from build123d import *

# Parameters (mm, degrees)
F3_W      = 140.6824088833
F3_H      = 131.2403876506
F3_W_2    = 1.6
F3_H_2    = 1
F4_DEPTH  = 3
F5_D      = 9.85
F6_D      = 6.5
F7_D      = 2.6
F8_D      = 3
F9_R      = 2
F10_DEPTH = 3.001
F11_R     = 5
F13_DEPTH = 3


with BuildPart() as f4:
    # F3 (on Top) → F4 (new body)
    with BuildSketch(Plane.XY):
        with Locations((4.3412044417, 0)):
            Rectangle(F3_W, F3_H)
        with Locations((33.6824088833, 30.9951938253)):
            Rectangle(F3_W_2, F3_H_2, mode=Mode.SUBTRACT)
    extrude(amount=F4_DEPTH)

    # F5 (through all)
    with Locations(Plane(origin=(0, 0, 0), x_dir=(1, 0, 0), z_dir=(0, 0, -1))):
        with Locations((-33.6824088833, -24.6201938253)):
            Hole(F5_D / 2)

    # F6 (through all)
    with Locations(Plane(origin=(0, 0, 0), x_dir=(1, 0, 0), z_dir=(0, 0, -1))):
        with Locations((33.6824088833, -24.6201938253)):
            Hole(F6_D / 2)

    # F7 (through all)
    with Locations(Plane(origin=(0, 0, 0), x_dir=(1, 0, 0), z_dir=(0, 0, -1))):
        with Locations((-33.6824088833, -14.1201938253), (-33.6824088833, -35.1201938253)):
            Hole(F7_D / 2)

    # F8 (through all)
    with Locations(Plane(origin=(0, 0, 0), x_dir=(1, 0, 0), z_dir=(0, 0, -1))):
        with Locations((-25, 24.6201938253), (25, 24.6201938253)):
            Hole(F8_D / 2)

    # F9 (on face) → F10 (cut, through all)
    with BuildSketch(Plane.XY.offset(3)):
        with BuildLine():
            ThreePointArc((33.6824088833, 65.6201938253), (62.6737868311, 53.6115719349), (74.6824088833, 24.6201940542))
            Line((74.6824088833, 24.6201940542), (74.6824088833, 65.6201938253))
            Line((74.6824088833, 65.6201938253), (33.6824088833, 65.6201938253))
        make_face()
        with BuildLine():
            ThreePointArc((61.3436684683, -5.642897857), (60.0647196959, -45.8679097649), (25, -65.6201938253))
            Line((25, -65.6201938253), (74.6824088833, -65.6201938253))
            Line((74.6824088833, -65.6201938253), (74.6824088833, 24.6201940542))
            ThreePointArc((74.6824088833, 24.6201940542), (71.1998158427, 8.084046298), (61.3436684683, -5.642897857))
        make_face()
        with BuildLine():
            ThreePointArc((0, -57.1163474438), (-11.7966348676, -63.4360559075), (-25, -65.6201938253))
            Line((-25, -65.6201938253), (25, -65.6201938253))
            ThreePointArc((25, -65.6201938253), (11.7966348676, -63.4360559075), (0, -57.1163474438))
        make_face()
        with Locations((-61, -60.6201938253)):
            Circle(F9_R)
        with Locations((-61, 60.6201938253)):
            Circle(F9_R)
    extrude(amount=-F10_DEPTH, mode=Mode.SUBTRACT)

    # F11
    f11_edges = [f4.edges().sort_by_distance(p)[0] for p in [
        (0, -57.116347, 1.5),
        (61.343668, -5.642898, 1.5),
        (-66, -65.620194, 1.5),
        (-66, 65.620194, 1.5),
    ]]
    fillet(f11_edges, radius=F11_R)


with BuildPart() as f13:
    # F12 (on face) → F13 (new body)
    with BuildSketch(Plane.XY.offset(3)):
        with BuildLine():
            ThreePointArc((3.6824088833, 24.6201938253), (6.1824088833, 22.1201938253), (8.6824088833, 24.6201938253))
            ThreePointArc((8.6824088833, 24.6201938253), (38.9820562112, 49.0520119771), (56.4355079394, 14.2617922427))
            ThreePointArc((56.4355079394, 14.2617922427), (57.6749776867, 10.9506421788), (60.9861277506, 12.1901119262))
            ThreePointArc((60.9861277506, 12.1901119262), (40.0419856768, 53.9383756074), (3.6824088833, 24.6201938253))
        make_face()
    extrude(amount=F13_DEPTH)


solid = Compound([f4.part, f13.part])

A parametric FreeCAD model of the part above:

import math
import FreeCAD as App
import Part
import Sketcher
from FreeCAD import Vector
Q = App.Units.Quantity


def edges_at(feature, points):
    """Names of the edges that pass closest to the given points."""
    edges = feature.Shape.Edges
    near = lambda p: min(range(len(edges)), key=lambda i: edges[i].distToShape(Part.Vertex(*p))[0])
    return sorted({f"Edge{near(p) + 1}" for p in points})


def add_polygon(sketch, points):
    """Adds a closed chain of lines whose ends are joined by coincident constraints."""
    first, n = sketch.GeometryCount, len(points)
    for a, b in zip(points, points[1:] + points[:1]):
        sketch.addGeometry(Part.LineSegment(App.Vector(*a, 0), App.Vector(*b, 0)), False)
    for i in range(n):
        sketch.addConstraint(Sketcher.Constraint("Coincident", first + i, 2, first + (i + 1) % n, 1))

doc = App.newDocument("Part")
params = doc.addObject("Spreadsheet::Sheet", "Params")
for row, (alias, value) in enumerate([
    ("sketch1_height", "1 mm"),
    ("sketch1_width", "1.6 mm"),
    ("pad1_length", "3 mm"),
    ("sketch2_diameter", "9.85 mm"),
    ("hole_diameter", "9.85 mm"),
    ("sketch3_diameter", "6.5 mm"),
    ("hole2_diameter", "6.5 mm"),
    ("sketch4_diameter", "2.6 mm"),
    ("hole3_diameter", "2.6 mm"),
    ("sketch5_diameter", "3 mm"),
    ("hole4_diameter", "3 mm"),
    ("sketch6_diameter", "4 mm"),
    ("sketch6_radius", "41 mm"),
    ("sketch6_width", "50 mm"),
    ("fillet_radius", "5 mm"),
    ("sketch7_radius", "25 mm"),
    ("sketch7_radius2", "30 mm"),
    ("pad2_length", "3 mm"),
], start=1):
    params.set(f"A{row}", alias)
    params.set(f"B{row}", "=" + value)
    params.setAlias(f"B{row}", alias)

body = doc.addObject("PartDesign::Body", "Body")

# Sketch on XY plane
sketch1 = doc.addObject("Sketcher::SketchObject", "Sketch")
body.addObject(sketch1)
sketch1.AttachmentSupport = (doc.XY_Plane, [""])
sketch1.MapMode = "FlatFace"
add_polygon(sketch1, [(-66, 65.6), (-66, -65.6), (74.7, -65.6), (74.7, 65.6)])  # lines 0-3
add_polygon(sketch1, [(34.5, 30.5), (32.9, 30.5), (32.9, 31.5), (34.5, 31.5)])  # lines 4-7
sketch1.addConstraint([
    Sketcher.Constraint("Vertical", 0),
    Sketcher.Constraint("Horizontal", 1),
    Sketcher.Constraint("Vertical", 2),
    Sketcher.Constraint("Horizontal", 3),
    Sketcher.Constraint("Horizontal", 4),
    Sketcher.Constraint("Vertical", 5),
    Sketcher.Constraint("Horizontal", 6),
    Sketcher.Constraint("Vertical", 7),
    Sketcher.Constraint("DistanceY", 5, 1, 5, 2, Q("1 mm")),
    Sketcher.Constraint("DistanceX", 4, 2, 4, 1, Q("1.6 mm")),
    Sketcher.Constraint("DistanceX", 0, 2, -1, 1, Q("66 mm")),
    Sketcher.Constraint("DistanceX", 4, 2, 2, 2, Q("41.8 mm")),
    Sketcher.Constraint("DistanceY", 4, 2, 2, 2, Q("35.125 mm")),
    Sketcher.Constraint("DistanceX", 1, 1, 1, 2, Q("140.682409 mm")),
    Sketcher.Constraint("DistanceY", 0, 2, 0, 1, Q("131.240388 mm")),
    Sketcher.Constraint("DistanceY", 0, 2, -1, 1, Q("65.620194 mm")),
])
sketch1.setExpression("Constraints[16]", "Params.sketch1_height")
sketch1.setExpression("Constraints[17]", "Params.sketch1_width")
pad1 = doc.addObject("PartDesign::Pad", "Pad")
body.addObject(pad1)
pad1.Profile = sketch1
pad1.setExpression("Length", "Params.pad1_length")

# Sketch on XY plane
sketch2 = doc.addObject("Sketcher::SketchObject", "Sketch001")
body.addObject(sketch2)
sketch2.AttachmentSupport = (doc.XY_Plane, [""])
sketch2.MapMode = "FlatFace"
sketch2.addGeometry(Part.Circle(Vector(-33.7, 24.6, 0), Vector(0, 0, 1), 4.9), False)
sketch2.addConstraint([
    Sketcher.Constraint("Diameter", 0, Q("9.85 mm")),
    Sketcher.Constraint("DistanceX", 0, 3, -1, 1, Q("33.682409 mm")),
    Sketcher.Constraint("DistanceY", -1, 1, 0, 3, Q("24.620194 mm")),
])
sketch2.setExpression("Constraints[0]", "Params.sketch2_diameter")
doc.recompute()
hole = doc.addObject("PartDesign::Hole", "Hole")
body.addObject(hole)
hole.Profile = sketch2
hole.ThreadType = "None"
hole.setExpression("Diameter", "Params.hole_diameter")
hole.DepthType = "ThroughAll"
hole.Reversed = True

# Sketch on XY plane
sketch3 = doc.addObject("Sketcher::SketchObject", "Sketch002")
body.addObject(sketch3)
sketch3.AttachmentSupport = (doc.XY_Plane, [""])
sketch3.MapMode = "FlatFace"
sketch3.addGeometry(Part.Circle(Vector(33.7, 24.6, 0), Vector(0, 0, 1), 3.2), False)
sketch3.addConstraint([
    Sketcher.Constraint("Diameter", 0, Q("6.5 mm")),
    Sketcher.Constraint("DistanceX", -1, 1, 0, 3, Q("33.682409 mm")),
    Sketcher.Constraint("DistanceY", -1, 1, 0, 3, Q("24.620194 mm")),
])
sketch3.setExpression("Constraints[0]", "Params.sketch3_diameter")
doc.recompute()
hole2 = doc.addObject("PartDesign::Hole", "Hole001")
body.addObject(hole2)
hole2.Profile = sketch3
hole2.ThreadType = "None"
hole2.setExpression("Diameter", "Params.hole2_diameter")
hole2.DepthType = "ThroughAll"
hole2.Reversed = True

# Sketch on XY plane
sketch4 = doc.addObject("Sketcher::SketchObject", "Sketch003")
body.addObject(sketch4)
sketch4.AttachmentSupport = (doc.XY_Plane, [""])
sketch4.MapMode = "FlatFace"
sketch4.addGeometry([
    Part.Circle(Vector(-33.7, 14.1, 0), Vector(0, 0, 1), 1.3),
    Part.Circle(Vector(-33.7, 35.1, 0), Vector(0, 0, 1), 1.3),
], False)
sketch4.addConstraint([
    Sketcher.Constraint("Equal", 0, 1),
    Sketcher.Constraint("Vertical", 0, 3, 1, 3),
    Sketcher.Constraint("Diameter", 0, Q("2.6 mm")),
    Sketcher.Constraint("DistanceY", 0, 3, 1, 3, Q("21 mm")),
    Sketcher.Constraint("DistanceX", 0, 3, -1, 1, Q("33.682409 mm")),
    Sketcher.Constraint("DistanceY", -1, 1, 0, 3, Q("14.120194 mm")),
])
sketch4.setExpression("Constraints[2]", "Params.sketch4_diameter")
doc.recompute()
hole3 = doc.addObject("PartDesign::Hole", "Hole002")
body.addObject(hole3)
hole3.Profile = sketch4
hole3.ThreadType = "None"
hole3.setExpression("Diameter", "Params.hole3_diameter")
hole3.DepthType = "ThroughAll"
hole3.Reversed = True

# Sketch on XY plane
sketch5 = doc.addObject("Sketcher::SketchObject", "Sketch004")
body.addObject(sketch5)
sketch5.AttachmentSupport = (doc.XY_Plane, [""])
sketch5.MapMode = "FlatFace"
sketch5.addGeometry([
    Part.Circle(Vector(-25, -24.6, 0), Vector(0, 0, 1), 1.5),
    Part.Circle(Vector(25, -24.6, 0), Vector(0, 0, 1), 1.5),
], False)
sketch5.addConstraint([
    Sketcher.Constraint("Equal", 0, 1),
    Sketcher.Constraint("Symmetric", 0, 3, 1, 3, -2),
    Sketcher.Constraint("Diameter", 0, Q("3 mm")),
    Sketcher.Constraint("DistanceX", 0, 3, -1, 1, Q("25 mm")),
    Sketcher.Constraint("DistanceY", 0, 3, -1, 1, Q("24.620194 mm")),
])
sketch5.setExpression("Constraints[2]", "Params.sketch5_diameter")
doc.recompute()
hole4 = doc.addObject("PartDesign::Hole", "Hole003")
body.addObject(hole4)
hole4.Profile = sketch5
hole4.ThreadType = "None"
hole4.setExpression("Diameter", "Params.hole4_diameter")
hole4.DepthType = "ThroughAll"
hole4.Reversed = True

# Sketch on XY plane
sketch6 = doc.addObject("Sketcher::SketchObject", "Sketch005")
body.addObject(sketch6)
sketch6.AttachmentSupport = (doc.XY_Plane, [""])
sketch6.MapMode = "FlatFace"
sketch6.AttachmentOffset = App.Placement(Vector(0, 0, 3), App.Rotation())
sketch6.addGeometry([
    Part.ArcOfCircle(Part.Circle(Vector(33.7, 24.6, 0), Vector(0, 0, 1), 41), math.radians(0), math.radians(90)),  # 0
    Part.LineSegment(Vector(74.7, 24.6, 0), Vector(74.7, 65.6, 0)),  # 1
    Part.LineSegment(Vector(74.7, 65.6, 0), Vector(33.7, 65.6, 0)),  # 2
    Part.ArcOfCircle(Part.Circle(Vector(25, -24.6, 0), Vector(0, 0, 1), 41), math.radians(-90), math.radians(28)),  # 3
    Part.LineSegment(Vector(25, -65.6, 0), Vector(74.7, -65.6, 0)),  # 4
    Part.LineSegment(Vector(74.7, -65.6, 0), Vector(74.7, 24.6, 0)),  # 5
    Part.ArcOfCircle(Part.Circle(Vector(33.7, 24.6, 0), Vector(0, 0, 1), 41), math.radians(-48), math.radians(0)),  # 6
    Part.ArcOfCircle(Part.Circle(Vector(-25, -24.6, 0), Vector(0, 0, 1), 41), math.radians(-90), math.radians(-52)),  # 7
    Part.LineSegment(Vector(-25, -65.6, 0), Vector(25, -65.6, 0)),  # 8
    Part.ArcOfCircle(Part.Circle(Vector(25, -24.6, 0), Vector(0, 0, 1), 41), math.radians(-128), math.radians(-90)),  # 9
    Part.Circle(Vector(-61, -60.6, 0), Vector(0, 0, 1), 2),  # 10
    Part.Circle(Vector(-61, 60.6, 0), Vector(0, 0, 1), 2),  # 11
], False)
sketch6.addConstraint([
    Sketcher.Constraint("Tangent", 0, 1, 1, 1),
    Sketcher.Constraint("Coincident", 1, 2, 2, 1),
    Sketcher.Constraint("Tangent", 2, 2, 0, 2),
    Sketcher.Constraint("Tangent", 3, 1, 4, 1),
    Sketcher.Constraint("Coincident", 4, 2, 5, 1),
    Sketcher.Constraint("Tangent", 5, 2, 6, 2),
    Sketcher.Constraint("Coincident", 6, 1, 3, 2),
    Sketcher.Constraint("Tangent", 7, 1, 8, 1),
    Sketcher.Constraint("Tangent", 8, 2, 9, 2),
    Sketcher.Constraint("Coincident", 9, 1, 7, 2),
    Sketcher.Constraint("Vertical", 1),
    Sketcher.Constraint("Horizontal", 2),
    Sketcher.Constraint("Horizontal", 4),
    Sketcher.Constraint("Vertical", 5),
    Sketcher.Constraint("Horizontal", 8),
    Sketcher.Constraint("Coincident", 6, 3, 0, 3),
    Sketcher.Constraint("Coincident", 9, 3, 3, 3),
    Sketcher.Constraint("Equal", 0, 3),
    Sketcher.Constraint("Equal", 3, 6),
    Sketcher.Constraint("Equal", 6, 7),
    Sketcher.Constraint("Equal", 7, 9),
    Sketcher.Constraint("Equal", 10, 11),
    Sketcher.Constraint("Symmetric", 10, 3, 11, 3, -1),
    Sketcher.Constraint("PointOnObject", 9, 1, -2),
    Sketcher.Constraint("Diameter", 10, Q("4 mm")),
    Sketcher.Constraint("Radius", 0, Q("41 mm")),
    Sketcher.Constraint("DistanceX", 8, 1, 8, 2, Q("50 mm")),
    Sketcher.Constraint("DistanceX", 10, 3, -1, 1, Q("61 mm")),
    Sketcher.Constraint("DistanceY", 10, 3, 7, 3, Q("36 mm")),
    Sketcher.Constraint("DistanceY", 0, 3, 11, 3, Q("36 mm")),
    Sketcher.Constraint("DistanceX", 4, 1, 4, 2, Q("49.682409 mm")),
    Sketcher.Constraint("DistanceY", 5, 1, 5, 2, Q("90.240388 mm")),
])
sketch6.setExpression("Constraints[24]", "Params.sketch6_diameter")
sketch6.setExpression("Constraints[25]", "Params.sketch6_radius")
sketch6.setExpression("Constraints[26]", "Params.sketch6_width")
pocket1 = doc.addObject("PartDesign::Pocket", "Pocket")
body.addObject(pocket1)
pocket1.Profile = sketch6
pocket1.Type = "ThroughAll"
doc.recompute()

fillet = doc.addObject("PartDesign::Fillet", "Fillet")
body.addObject(fillet)
fillet.Base = (pocket1, edges_at(pocket1, [
    (0, -57.116, 1.5),
    (61.344, -5.643, 1.5),
    (-66, -65.62, 1.5),
    (-66, 65.62, 1.5),
]))
fillet.setExpression("Radius", "Params.fillet_radius")
body2 = doc.addObject("PartDesign::Body", "Body001")

# Sketch on XY plane
sketch7 = doc.addObject("Sketcher::SketchObject", "Sketch006")
body2.addObject(sketch7)
sketch7.AttachmentSupport = (doc.getObject("XY_Plane001"), [""])
sketch7.MapMode = "FlatFace"
sketch7.AttachmentOffset = App.Placement(Vector(0, 0, 3), App.Rotation())
sketch7.addGeometry([
    Part.ArcOfCircle(Part.Circle(Vector(6.2, 24.6, 0), Vector(0, 0, 1), 2.5), math.radians(180), math.radians(360)),
    Part.ArcOfCircle(Part.Circle(Vector(33.7, 24.6, 0), Vector(0, 0, 1), 25), math.radians(-24), math.radians(180)),
    Part.ArcOfCircle(Part.Circle(Vector(58.7, 13.2, 0), Vector(0, 0, 1), 2.5), math.radians(156), math.radians(336)),
    Part.ArcOfCircle(Part.Circle(Vector(33.7, 24.6, 0), Vector(0, 0, 1), 30), math.radians(-24), math.radians(180)),
], False)
sketch7.addConstraint([
    Sketcher.Constraint("Tangent", 0, 2, 1, 2),
    Sketcher.Constraint("Tangent", 1, 1, 2, 1),
    Sketcher.Constraint("Tangent", 2, 2, 3, 1),
    Sketcher.Constraint("Tangent", 3, 2, 0, 1),
    Sketcher.Constraint("Coincident", 3, 3, 1, 3),
    Sketcher.Constraint("Horizontal", 0, 3, 1, 3),
    Sketcher.Constraint("Radius", 1, Q("25 mm")),
    Sketcher.Constraint("Radius", 3, Q("30 mm")),
    Sketcher.Constraint("DistanceX", 1, 3, 1, 1, Q("22.753099 mm")),
    Sketcher.Constraint("DistanceX", -1, 1, 0, 3, Q("6.182409 mm")),
    Sketcher.Constraint("DistanceY", -1, 1, 2, 2, Q("12.190112 mm")),
])
sketch7.setExpression("Constraints[6]", "Params.sketch7_radius")
sketch7.setExpression("Constraints[7]", "Params.sketch7_radius2")
pad2 = doc.addObject("PartDesign::Pad", "Pad001")
body2.addObject(pad2)
pad2.Profile = sketch7
pad2.setExpression("Length", "Params.pad2_length")

doc.recompute()
